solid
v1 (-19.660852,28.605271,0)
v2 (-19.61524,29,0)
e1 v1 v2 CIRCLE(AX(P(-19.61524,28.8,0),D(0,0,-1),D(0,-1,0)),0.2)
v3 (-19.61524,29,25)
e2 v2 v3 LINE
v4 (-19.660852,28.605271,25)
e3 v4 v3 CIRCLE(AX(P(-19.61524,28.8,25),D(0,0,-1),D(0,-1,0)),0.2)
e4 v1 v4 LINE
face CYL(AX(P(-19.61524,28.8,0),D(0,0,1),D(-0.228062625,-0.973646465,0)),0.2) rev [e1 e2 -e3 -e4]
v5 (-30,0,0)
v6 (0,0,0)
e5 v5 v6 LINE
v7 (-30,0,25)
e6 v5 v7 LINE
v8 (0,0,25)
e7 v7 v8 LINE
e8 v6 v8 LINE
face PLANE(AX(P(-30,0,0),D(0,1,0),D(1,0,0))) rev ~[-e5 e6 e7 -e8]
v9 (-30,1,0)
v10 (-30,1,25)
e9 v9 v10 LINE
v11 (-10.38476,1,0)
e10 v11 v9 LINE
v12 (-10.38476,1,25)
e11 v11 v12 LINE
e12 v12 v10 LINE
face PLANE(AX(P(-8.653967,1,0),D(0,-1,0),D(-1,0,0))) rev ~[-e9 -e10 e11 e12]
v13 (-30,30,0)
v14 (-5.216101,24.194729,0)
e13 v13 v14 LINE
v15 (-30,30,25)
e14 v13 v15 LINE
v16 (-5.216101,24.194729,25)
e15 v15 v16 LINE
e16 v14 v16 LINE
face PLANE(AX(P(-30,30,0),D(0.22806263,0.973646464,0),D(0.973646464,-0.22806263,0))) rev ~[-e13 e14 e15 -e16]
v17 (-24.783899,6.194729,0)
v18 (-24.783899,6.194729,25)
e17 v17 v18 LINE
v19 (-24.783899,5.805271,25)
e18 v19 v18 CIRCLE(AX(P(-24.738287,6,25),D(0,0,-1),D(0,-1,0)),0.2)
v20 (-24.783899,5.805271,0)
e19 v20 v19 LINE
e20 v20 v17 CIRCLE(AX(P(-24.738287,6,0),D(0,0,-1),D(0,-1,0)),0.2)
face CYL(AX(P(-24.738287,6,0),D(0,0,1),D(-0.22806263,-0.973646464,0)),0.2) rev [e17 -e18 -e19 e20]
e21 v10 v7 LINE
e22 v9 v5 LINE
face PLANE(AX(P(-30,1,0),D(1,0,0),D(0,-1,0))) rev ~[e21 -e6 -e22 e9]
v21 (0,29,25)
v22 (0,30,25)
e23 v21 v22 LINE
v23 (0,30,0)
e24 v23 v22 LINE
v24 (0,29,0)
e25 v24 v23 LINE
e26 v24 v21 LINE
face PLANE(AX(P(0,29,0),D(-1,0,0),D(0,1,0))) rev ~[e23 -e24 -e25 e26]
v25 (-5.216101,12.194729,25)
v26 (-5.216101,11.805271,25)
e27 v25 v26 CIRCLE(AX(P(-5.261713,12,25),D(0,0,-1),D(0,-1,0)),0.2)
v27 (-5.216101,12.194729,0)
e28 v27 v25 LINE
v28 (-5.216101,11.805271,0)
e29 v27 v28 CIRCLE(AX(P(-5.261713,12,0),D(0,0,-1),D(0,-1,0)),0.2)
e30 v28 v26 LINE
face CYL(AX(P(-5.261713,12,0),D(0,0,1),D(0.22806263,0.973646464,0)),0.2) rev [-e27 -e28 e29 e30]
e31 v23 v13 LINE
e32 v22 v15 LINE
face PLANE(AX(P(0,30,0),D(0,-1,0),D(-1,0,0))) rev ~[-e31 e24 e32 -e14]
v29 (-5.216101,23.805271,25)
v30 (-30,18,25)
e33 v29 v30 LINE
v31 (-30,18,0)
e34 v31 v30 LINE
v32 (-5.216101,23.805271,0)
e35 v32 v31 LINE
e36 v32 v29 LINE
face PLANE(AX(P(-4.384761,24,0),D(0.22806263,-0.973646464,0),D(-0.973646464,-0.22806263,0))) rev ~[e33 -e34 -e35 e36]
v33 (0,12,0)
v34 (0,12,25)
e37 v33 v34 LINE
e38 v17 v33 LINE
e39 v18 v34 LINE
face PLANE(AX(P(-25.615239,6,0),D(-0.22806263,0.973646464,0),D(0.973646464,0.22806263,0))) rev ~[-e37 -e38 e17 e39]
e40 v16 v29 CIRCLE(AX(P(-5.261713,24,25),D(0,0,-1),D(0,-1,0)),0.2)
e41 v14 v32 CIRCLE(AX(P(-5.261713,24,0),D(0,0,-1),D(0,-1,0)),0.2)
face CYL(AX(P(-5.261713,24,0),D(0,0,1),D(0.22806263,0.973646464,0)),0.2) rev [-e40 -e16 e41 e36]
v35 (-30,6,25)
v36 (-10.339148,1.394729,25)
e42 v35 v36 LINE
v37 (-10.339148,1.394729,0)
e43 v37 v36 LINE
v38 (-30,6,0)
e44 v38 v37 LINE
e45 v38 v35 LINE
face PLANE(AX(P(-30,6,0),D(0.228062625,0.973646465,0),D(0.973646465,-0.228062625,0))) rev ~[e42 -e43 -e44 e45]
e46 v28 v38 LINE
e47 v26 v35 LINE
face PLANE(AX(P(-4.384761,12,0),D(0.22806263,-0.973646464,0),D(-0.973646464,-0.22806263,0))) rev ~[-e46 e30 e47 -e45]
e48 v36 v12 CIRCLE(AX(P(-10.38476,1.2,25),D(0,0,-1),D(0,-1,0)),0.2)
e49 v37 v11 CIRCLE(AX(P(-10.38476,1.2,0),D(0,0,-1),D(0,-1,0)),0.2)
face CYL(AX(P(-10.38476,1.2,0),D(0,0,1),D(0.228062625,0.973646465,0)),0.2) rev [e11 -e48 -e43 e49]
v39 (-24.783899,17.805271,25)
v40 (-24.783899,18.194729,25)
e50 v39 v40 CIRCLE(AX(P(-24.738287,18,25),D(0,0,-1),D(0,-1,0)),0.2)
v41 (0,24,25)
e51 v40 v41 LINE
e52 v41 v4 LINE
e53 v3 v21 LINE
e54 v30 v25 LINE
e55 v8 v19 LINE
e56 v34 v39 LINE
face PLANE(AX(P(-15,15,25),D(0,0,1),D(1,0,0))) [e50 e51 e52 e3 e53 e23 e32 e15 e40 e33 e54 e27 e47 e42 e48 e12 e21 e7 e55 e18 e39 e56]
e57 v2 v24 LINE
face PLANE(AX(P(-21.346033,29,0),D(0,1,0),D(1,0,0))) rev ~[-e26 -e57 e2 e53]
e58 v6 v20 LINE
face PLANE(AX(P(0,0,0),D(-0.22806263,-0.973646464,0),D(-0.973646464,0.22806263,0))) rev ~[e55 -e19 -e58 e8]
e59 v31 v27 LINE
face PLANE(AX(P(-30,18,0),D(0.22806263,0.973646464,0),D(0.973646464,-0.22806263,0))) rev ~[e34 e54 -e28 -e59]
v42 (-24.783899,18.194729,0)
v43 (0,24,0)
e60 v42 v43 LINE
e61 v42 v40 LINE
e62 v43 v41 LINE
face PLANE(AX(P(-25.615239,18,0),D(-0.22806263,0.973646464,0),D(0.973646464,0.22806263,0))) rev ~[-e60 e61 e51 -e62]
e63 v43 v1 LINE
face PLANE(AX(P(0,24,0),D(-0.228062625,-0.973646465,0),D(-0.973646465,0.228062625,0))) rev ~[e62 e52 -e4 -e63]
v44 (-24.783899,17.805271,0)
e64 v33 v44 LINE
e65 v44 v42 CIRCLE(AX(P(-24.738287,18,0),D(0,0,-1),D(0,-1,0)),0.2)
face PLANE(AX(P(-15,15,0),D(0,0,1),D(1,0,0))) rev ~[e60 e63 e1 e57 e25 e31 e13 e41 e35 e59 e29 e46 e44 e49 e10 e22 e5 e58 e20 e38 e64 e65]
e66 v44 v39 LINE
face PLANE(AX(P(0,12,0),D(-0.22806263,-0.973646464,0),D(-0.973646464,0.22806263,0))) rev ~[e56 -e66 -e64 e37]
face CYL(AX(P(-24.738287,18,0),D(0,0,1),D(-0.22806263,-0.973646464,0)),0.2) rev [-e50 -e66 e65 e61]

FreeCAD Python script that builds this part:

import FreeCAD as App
import Part
import Sketcher
from FreeCAD import Vector


def edges_at(feature, points):
    """Names of the edges that pass closest to the given points."""
    edges = feature.Shape.Edges
    near = lambda p: min(range(len(edges)), key=lambda i: edges[i].distToShape(Part.Vertex(*p))[0])
    return sorted({f"Edge{near(p) + 1}" for p in points})

doc = App.newDocument("Part")
body = doc.addObject("PartDesign::Body", "Body")

sketch1 = body.newObject("Sketcher::SketchObject", "Sketch")
sketch1.AttachmentSupport = (doc.getObject("XY_Plane"), [""])
sketch1.MapMode = "FlatFace"
sketch1.addGeometry(Part.LineSegment(Vector(-30, 6, 0), Vector(-8.7, 1, 0)), False)
sketch1.addGeometry(Part.LineSegment(Vector(-8.7, 1, 0), Vector(-30, 1, 0)), False)
sketch1.addGeometry(Part.LineSegment(Vector(-30, 1, 0), Vector(-30, 0, 0)), False)
sketch1.addGeometry(Part.LineSegment(Vector(-30, 0, 0), Vector(0, 0, 0)), False)
sketch1.addGeometry(Part.LineSegment(Vector(0, 0, 0), Vector(-25.6, 6, 0)), False)
sketch1.addGeometry(Part.LineSegment(Vector(-25.6, 6, 0), Vector(0, 12, 0)), False)
sketch1.addGeometry(Part.LineSegment(Vector(0, 12, 0), Vector(-25.6, 18, 0)), False)
sketch1.addGeometry(Part.LineSegment(Vector(-25.6, 18, 0), Vector(0, 24, 0)), False)
sketch1.addGeometry(Part.LineSegment(Vector(0, 24, 0), Vector(-21.3, 29, 0)), False)
sketch1.addGeometry(Part.LineSegment(Vector(-21.3, 29, 0), Vector(0, 29, 0)), False)
sketch1.addGeometry(Part.LineSegment(Vector(0, 29, 0), Vector(0, 30, 0)), False)
sketch1.addGeometry(Part.LineSegment(Vector(0, 30, 0), Vector(-30, 30, 0)), False)
sketch1.addGeometry(Part.LineSegment(Vector(-30, 30, 0), Vector(-4.4, 24, 0)), False)
sketch1.addGeometry(Part.LineSegment(Vector(-4.4, 24, 0), Vector(-30, 18, 0)), False)
sketch1.addGeometry(Part.LineSegment(Vector(-30, 18, 0), Vector(-4.4, 12, 0)), False)
sketch1.addGeometry(Part.LineSegment(Vector(-4.4, 12, 0), Vector(-30, 6, 0)), False)
sketch1.addConstraint(Sketcher.Constraint("Coincident", 0, 2, 1, 1))
sketch1.addConstraint(Sketcher.Constraint("Coincident", 1, 2, 2, 1))
sketch1.addConstraint(Sketcher.Constraint("Coincident", 2, 2, 3, 1))
sketch1.addConstraint(Sketcher.Constraint("Coincident", 3, 2, 4, 1))
sketch1.addConstraint(Sketcher.Constraint("Coincident", 4, 2, 5, 1))
sketch1.addConstraint(Sketcher.Constraint("Coincident", 5, 2, 6, 1))
sketch1.addConstraint(Sketcher.Constraint("Coincident", 6, 2, 7, 1))
sketch1.addConstraint(Sketcher.Constraint("Coincident", 7, 2, 8, 1))
sketch1.addConstraint(Sketcher.Constraint("Coincident", 8, 2, 9, 1))
sketch1.addConstraint(Sketcher.Constraint("Coincident", 9, 2, 10, 1))
sketch1.addConstraint(Sketcher.Constraint("Coincident", 10, 2, 11, 1))
sketch1.addConstraint(Sketcher.Constraint("Coincident", 11, 2, 12, 1))
sketch1.addConstraint(Sketcher.Constraint("Coincident", 12, 2, 13, 1))
sketch1.addConstraint(Sketcher.Constraint("Coincident", 13, 2, 14, 1))
sketch1.addConstraint(Sketcher.Constraint("Coincident", 14, 2, 15, 1))
sketch1.addConstraint(Sketcher.Constraint("Coincident", 15, 2, 0, 1))
sketch1.addConstraint(Sketcher.Constraint("Horizontal", 1))
sketch1.addConstraint(Sketcher.Constraint("Vertical", 2))
sketch1.addConstraint(Sketcher.Constraint("Horizontal", 3))
sketch1.addConstraint(Sketcher.Constraint("Horizontal", 9))
sketch1.addConstraint(Sketcher.Constraint("Vertical", 10))
sketch1.addConstraint(Sketcher.Constraint("Horizontal", 11))
sketch1.addConstraint(Sketcher.Constraint("Coincident", 3, 2, -1, 1))
sketch1.addConstraint(Sketcher.Constraint("PointOnObject", 5, 2, -2))
sketch1.addConstraint(Sketcher.Constraint("PointOnObject", 7, 2, -2))
sketch1.addConstraint(Sketcher.Constraint("PointOnObject", 9, 2, -2))
sketch1.addConstraint(Sketcher.Constraint("Parallel", 0, 4))
sketch1.addConstraint(Sketcher.Constraint("Parallel", 4, 6))
sketch1.addConstraint(Sketcher.Constraint("Parallel", 5, 7))
sketch1.addConstraint(Sketcher.Constraint("Parallel", 6, 8))
sketch1.addConstraint(Sketcher.Constraint("Parallel", 8, 12))
sketch1.addConstraint(Sketcher.Constraint("Parallel", 7, 13))
sketch1.addConstraint(Sketcher.Constraint("Parallel", 12, 14))
sketch1.addConstraint(Sketcher.Constraint("Parallel", 13, 15))
sketch1.addConstraint(Sketcher.Constraint("Horizontal", 7, 2, 12, 2))
sketch1.addConstraint(Sketcher.Constraint("Horizontal", 6, 2, 13, 2))
sketch1.addConstraint(Sketcher.Constraint("Horizontal", 5, 2, 14, 2))
sketch1.addConstraint(Sketcher.Constraint("Horizontal", 4, 2, 15, 2))
sketch1.addConstraint(Sketcher.Constraint("Vertical", 4, 2, 6, 2))
sketch1.addConstraint(Sketcher.Constraint("Vertical", 2, 2, 11, 2))
sketch1.addConstraint(Sketcher.Constraint("Vertical", 11, 2, 13, 2))
sketch1.addConstraint(Sketcher.Constraint("Equal", 1, 9))
sketch1.addConstraint(Sketcher.Constraint("Equal", 4, 5))
sketch1.addConstraint(Sketcher.Constraint("DistanceX", 3, 1, 3, 2, 30.0))
sketch1.addConstraint(Sketcher.Constraint("DistanceY", 2, 2, 2, 1, 1.0))
sketch1.addConstraint(Sketcher.Constraint("DistanceY", -1, 1, 4, 2, 6.0))
sketch1.addConstraint(Sketcher.Constraint("DistanceX", 1, 2, 1, 1, 21.346033))
pad1 = body.newObject("PartDesign::Pad", "Pad")
pad1.Profile = sketch1
pad1.Length = 25
doc.recompute()

fillet = body.newObject("PartDesign::Fillet", "Fillet")
fillet.Base = (pad1, edges_at(pad1, [
    (-21.346, 29, 12.5),
    (-25.615, 18, 12.5),
    (-25.615, 6, 12.5),
    (-8.654, 1, 12.5),
    (-4.385, 12, 12.5),
    (-4.385, 24, 12.5),
]))
fillet.Radius = 0.2

doc.recompute()
